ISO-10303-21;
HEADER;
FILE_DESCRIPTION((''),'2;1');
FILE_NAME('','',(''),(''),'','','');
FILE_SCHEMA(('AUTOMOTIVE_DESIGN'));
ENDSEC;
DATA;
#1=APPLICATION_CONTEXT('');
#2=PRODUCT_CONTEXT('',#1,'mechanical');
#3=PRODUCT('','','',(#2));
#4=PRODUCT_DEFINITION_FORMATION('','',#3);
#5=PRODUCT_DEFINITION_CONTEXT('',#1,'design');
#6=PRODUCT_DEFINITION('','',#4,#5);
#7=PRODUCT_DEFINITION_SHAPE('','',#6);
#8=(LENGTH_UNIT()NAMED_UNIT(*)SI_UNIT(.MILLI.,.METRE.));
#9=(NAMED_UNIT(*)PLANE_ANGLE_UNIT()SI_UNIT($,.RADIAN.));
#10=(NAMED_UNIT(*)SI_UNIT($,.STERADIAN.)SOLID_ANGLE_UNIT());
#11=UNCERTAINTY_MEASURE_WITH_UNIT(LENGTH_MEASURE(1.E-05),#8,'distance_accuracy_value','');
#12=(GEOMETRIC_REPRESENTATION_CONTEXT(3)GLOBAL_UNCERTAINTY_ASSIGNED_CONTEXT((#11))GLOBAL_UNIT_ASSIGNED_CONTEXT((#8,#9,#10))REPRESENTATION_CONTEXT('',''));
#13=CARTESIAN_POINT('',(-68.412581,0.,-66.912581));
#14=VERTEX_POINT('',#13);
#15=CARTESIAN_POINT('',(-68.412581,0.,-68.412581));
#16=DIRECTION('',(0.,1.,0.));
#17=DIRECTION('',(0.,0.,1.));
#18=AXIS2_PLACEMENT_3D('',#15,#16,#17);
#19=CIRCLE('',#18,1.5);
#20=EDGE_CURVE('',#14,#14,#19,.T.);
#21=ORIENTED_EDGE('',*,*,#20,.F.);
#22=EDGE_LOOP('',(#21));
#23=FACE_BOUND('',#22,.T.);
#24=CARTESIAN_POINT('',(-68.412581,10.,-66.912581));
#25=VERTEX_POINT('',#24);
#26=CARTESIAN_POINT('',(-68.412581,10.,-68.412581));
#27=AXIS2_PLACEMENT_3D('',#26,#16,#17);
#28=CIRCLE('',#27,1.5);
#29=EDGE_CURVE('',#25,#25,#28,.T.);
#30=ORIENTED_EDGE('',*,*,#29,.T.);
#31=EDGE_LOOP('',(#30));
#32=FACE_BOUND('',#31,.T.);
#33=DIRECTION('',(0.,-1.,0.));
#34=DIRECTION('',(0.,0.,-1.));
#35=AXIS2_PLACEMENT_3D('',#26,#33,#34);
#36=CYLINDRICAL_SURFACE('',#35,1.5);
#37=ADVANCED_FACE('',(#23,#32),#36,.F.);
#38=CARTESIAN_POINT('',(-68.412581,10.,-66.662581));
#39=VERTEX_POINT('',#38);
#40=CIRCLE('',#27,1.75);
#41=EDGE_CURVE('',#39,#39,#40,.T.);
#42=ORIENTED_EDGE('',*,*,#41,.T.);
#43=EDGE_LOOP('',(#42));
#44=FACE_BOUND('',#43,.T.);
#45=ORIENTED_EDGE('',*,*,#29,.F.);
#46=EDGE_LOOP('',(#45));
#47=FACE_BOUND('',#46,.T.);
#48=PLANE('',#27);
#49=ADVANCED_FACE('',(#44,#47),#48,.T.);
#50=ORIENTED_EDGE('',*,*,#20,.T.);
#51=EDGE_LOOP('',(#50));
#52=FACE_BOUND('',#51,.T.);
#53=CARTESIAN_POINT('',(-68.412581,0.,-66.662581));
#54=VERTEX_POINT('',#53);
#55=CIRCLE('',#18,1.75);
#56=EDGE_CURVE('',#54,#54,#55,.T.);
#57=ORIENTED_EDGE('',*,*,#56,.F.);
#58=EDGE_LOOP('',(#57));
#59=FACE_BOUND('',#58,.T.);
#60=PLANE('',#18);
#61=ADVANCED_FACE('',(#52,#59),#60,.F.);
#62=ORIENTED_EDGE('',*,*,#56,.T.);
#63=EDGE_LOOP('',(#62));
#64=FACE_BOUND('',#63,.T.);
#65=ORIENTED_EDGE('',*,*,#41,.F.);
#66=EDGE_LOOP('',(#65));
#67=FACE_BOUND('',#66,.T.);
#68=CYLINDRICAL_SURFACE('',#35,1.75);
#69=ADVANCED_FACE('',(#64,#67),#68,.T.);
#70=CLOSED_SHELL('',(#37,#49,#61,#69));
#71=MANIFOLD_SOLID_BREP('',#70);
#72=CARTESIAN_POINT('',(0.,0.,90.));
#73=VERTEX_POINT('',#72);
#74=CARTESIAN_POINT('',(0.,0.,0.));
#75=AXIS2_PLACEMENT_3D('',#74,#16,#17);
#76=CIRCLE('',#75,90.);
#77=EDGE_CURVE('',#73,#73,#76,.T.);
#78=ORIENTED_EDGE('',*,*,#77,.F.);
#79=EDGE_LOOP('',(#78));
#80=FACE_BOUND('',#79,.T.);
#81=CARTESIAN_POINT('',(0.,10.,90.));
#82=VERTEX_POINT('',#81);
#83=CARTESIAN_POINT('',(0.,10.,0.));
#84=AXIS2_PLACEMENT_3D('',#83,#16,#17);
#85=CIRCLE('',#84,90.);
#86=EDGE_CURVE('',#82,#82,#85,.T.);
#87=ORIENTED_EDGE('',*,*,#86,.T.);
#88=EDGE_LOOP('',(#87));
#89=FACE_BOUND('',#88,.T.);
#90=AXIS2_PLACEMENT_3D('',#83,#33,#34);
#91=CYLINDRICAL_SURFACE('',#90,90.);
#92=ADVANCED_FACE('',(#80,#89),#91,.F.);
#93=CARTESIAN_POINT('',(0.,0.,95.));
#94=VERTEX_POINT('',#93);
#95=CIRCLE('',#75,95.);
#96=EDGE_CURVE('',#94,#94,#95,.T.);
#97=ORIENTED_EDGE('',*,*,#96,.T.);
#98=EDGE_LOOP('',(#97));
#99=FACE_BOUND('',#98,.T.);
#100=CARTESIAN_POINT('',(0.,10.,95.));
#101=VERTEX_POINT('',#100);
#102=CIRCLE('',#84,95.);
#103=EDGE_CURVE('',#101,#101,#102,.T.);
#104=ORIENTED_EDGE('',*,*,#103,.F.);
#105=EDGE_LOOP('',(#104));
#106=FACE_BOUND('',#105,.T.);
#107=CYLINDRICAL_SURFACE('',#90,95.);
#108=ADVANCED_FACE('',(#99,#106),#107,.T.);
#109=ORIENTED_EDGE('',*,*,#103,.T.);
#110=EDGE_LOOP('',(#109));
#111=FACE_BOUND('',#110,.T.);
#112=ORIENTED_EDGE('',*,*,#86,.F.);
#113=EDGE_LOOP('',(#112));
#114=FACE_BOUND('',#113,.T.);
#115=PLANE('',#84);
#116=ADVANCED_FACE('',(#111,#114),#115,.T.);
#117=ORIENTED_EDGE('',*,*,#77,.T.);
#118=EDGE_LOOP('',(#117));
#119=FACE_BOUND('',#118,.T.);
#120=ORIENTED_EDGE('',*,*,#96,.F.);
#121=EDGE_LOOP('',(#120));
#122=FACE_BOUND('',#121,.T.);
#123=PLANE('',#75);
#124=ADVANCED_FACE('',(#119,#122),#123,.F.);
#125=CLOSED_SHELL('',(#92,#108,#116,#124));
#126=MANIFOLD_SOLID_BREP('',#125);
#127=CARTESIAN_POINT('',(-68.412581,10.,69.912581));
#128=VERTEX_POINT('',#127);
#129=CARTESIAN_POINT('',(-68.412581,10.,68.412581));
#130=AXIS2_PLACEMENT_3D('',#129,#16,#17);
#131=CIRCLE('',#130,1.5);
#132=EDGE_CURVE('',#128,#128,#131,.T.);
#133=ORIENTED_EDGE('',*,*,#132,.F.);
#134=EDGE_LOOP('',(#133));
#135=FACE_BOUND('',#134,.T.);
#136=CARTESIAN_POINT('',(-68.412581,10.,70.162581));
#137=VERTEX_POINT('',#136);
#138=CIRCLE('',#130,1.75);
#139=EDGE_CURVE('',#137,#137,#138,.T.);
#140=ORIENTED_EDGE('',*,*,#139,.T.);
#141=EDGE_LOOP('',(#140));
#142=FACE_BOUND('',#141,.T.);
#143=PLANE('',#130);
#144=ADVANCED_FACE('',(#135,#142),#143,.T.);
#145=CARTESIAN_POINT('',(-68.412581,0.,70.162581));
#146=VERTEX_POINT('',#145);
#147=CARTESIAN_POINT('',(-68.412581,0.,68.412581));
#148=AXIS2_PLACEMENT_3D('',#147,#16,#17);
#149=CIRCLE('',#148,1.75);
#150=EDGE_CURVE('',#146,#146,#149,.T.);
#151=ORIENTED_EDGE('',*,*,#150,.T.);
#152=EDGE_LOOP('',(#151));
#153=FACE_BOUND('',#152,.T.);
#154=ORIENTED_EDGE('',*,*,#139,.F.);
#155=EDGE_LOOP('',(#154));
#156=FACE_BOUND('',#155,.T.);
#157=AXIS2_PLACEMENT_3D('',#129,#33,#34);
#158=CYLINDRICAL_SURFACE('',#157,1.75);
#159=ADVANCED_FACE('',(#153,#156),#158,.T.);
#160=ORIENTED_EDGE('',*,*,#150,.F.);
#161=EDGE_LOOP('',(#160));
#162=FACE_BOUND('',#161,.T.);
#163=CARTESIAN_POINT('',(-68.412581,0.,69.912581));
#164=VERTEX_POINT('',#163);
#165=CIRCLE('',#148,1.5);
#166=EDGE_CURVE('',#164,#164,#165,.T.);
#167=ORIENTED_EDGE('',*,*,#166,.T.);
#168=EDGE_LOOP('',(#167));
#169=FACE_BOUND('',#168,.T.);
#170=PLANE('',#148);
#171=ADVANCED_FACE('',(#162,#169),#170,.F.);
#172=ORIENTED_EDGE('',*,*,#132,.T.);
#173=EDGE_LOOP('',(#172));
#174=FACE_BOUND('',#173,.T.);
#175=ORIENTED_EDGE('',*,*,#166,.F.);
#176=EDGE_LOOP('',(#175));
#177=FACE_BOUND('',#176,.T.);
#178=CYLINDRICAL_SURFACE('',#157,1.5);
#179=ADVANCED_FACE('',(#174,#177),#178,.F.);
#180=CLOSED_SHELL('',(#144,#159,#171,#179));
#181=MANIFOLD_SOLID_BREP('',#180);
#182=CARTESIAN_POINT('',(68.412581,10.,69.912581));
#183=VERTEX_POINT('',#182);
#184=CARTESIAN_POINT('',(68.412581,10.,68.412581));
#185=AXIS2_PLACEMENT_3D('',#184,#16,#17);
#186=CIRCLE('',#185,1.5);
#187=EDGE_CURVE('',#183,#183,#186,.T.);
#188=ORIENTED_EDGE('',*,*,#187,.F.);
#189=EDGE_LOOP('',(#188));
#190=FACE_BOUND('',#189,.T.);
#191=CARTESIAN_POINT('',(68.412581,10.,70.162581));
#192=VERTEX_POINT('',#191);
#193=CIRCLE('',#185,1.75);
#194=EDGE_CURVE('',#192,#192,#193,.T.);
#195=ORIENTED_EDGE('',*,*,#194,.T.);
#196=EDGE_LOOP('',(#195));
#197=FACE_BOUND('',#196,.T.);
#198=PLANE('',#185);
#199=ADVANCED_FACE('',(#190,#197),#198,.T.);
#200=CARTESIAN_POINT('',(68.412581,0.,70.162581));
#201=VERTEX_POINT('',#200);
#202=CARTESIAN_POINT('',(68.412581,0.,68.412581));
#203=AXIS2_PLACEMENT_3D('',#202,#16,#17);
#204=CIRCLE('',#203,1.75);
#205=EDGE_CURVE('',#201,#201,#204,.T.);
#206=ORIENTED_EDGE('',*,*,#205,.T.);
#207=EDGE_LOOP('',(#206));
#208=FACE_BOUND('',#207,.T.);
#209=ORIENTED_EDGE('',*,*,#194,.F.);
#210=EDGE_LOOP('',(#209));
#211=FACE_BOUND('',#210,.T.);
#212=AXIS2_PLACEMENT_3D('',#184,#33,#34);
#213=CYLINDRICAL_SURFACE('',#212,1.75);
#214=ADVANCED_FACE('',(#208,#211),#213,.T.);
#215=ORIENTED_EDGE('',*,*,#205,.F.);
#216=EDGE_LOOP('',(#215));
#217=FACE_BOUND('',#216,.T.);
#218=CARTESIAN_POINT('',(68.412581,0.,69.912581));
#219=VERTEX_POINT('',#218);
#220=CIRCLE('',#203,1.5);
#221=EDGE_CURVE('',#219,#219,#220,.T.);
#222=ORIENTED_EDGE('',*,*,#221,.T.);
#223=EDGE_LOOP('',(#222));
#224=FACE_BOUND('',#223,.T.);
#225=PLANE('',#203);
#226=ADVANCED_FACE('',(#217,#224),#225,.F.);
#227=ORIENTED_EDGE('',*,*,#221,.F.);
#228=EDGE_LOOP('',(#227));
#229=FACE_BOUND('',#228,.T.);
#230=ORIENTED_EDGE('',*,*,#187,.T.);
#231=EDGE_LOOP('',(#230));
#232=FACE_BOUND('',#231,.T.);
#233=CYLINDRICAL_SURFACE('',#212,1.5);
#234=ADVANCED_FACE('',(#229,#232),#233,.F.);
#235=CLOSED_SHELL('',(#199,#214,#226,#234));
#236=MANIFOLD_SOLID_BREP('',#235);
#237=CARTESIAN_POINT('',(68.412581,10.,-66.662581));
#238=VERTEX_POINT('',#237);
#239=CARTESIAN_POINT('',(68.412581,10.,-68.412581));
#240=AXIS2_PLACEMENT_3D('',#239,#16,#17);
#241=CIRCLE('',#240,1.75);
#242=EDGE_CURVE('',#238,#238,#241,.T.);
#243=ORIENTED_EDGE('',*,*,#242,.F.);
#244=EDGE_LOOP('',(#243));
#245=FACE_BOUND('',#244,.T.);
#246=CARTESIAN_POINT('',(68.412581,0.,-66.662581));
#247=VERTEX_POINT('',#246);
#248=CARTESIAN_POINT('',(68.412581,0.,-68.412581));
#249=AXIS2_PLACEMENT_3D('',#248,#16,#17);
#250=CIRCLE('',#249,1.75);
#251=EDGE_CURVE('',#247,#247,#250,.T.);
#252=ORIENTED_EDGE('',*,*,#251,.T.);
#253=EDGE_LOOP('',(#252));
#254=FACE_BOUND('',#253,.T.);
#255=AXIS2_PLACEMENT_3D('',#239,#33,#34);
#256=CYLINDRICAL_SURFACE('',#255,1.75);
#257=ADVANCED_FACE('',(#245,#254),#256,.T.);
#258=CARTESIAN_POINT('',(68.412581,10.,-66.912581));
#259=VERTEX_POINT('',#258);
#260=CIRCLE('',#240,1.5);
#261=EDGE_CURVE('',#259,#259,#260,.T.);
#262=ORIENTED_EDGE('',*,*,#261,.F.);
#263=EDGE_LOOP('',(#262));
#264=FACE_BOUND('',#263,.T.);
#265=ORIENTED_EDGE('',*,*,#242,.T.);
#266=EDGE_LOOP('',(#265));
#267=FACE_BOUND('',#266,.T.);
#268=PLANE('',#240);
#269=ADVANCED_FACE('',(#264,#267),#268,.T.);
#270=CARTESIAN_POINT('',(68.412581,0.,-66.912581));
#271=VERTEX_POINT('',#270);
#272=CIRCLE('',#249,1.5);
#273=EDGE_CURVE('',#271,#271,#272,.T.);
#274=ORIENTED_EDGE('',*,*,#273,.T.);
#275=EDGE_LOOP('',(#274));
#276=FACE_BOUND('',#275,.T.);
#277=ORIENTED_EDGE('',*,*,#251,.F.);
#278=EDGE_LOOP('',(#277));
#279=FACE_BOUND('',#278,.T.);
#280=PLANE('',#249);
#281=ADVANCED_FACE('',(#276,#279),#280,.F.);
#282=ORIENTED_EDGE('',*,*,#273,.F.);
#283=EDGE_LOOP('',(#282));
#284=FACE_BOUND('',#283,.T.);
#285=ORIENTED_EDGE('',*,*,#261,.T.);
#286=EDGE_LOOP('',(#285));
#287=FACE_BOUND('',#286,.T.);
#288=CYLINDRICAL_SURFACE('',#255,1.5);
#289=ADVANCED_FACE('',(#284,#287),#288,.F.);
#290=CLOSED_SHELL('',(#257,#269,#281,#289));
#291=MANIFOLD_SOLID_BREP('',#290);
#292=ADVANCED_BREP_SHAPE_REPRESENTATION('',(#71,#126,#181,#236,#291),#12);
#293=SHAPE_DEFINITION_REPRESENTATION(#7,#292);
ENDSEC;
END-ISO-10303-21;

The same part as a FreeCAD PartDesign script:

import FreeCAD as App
import Part
import Sketcher

V = App.Vector

doc = App.newDocument("Part")
body = doc.addObject("PartDesign::Body", "Body")

sketch1 = body.newObject("Sketcher::SketchObject", "Sketch")
sketch1.AttachmentSupport = (doc.getObject("XZ_Plane"), [""])
sketch1.MapMode = "FlatFace"
sketch1.addGeometry(Part.Circle(V(0, 0, 0), V(0, 0, 1), 95), False)
sketch1.addGeometry(Part.Circle(V(0, 0, 0), V(0, 0, 1), 90), False)
sketch1.addConstraint(Sketcher.Constraint("Coincident", 0, 3, -1, 1))
sketch1.addConstraint(Sketcher.Constraint("Coincident", 1, 3, -1, 1))
sketch1.addConstraint(Sketcher.Constraint("Diameter", 0, 190.0))
sketch1.addConstraint(Sketcher.Constraint("Diameter", 1, 180.0))
pad1 = body.newObject("PartDesign::Pad", "Pad")
pad1.Profile = sketch1
pad1.Length = 10
pad1.Reversed = True
body2 = doc.addObject("PartDesign::Body", "Body001")

sketch2 = body2.newObject("Sketcher::SketchObject", "Sketch001")
sketch2.AttachmentSupport = (doc.getObject("XZ_Plane001"), [""])
sketch2.MapMode = "FlatFace"
sketch2.addGeometry(Part.Circle(V(68.4, -68.4, 0), V(0, 0, 1), 1.8), False)
sketch2.addGeometry(Part.Circle(V(68.4, -68.4, 0), V(0, 0, 1), 1.5), False)
sketch2.addConstraint(Sketcher.Constraint("Coincident", 1, 3, 0, 3))
sketch2.addConstraint(Sketcher.Constraint("Diameter", 1, 3.0))
sketch2.addConstraint(Sketcher.Constraint("Diameter", 0, 3.5))
sketch2.addConstraint(Sketcher.Constraint("DistanceX", -1, 1, 0, 3, 68.412581))
sketch2.addConstraint(Sketcher.Constraint("DistanceY", 0, 3, -1, 1, 68.412581))
pad2 = body2.newObject("PartDesign::Pad", "Pad001")
pad2.Profile = sketch2
pad2.Length = 10
pad2.Reversed = True
body3 = doc.addObject("PartDesign::Body", "Body002")

sketch3 = body3.newObject("Sketcher::SketchObject", "Sketch002")
sketch3.AttachmentSupport = (doc.getObject("XZ_Plane002"), [""])
sketch3.MapMode = "FlatFace"
sketch3.addGeometry(Part.Circle(V(68.4, 68.4, 0), V(0, 0, 1), 1.8), False)
sketch3.addGeometry(Part.Circle(V(68.4, 68.4, 0), V(0, 0, 1), 1.5), False)
sketch3.addConstraint(Sketcher.Constraint("Coincident", 1, 3, 0, 3))
sketch3.addConstraint(Sketcher.Constraint("Diameter", 1, 3.0))
sketch3.addConstraint(Sketcher.Constraint("Diameter", 0, 3.5))
sketch3.addConstraint(Sketcher.Constraint("DistanceX", -1, 1, 0, 3, 68.412581))
sketch3.addConstraint(Sketcher.Constraint("DistanceY", -1, 1, 0, 3, 68.412581))
pad3 = body3.newObject("PartDesign::Pad", "Pad002")
pad3.Profile = sketch3
pad3.Length = 10
pad3.Reversed = True
body4 = doc.addObject("PartDesign::Body", "Body003")

sketch4 = body4.newObject("Sketcher::SketchObject", "Sketch003")
sketch4.AttachmentSupport = (doc.getObject("XZ_Plane003"), [""])
sketch4.MapMode = "FlatFace"
sketch4.addGeometry(Part.Circle(V(-68.4, 68.4, 0), V(0, 0, 1), 1.8), False)
sketch4.addGeometry(Part.Circle(V(-68.4, 68.4, 0), V(0, 0, 1), 1.5), False)
sketch4.addConstraint(Sketcher.Constraint("Coincident", 1, 3, 0, 3))
sketch4.addConstraint(Sketcher.Constraint("Diameter", 1, 3.0))
sketch4.addConstraint(Sketcher.Constraint("Diameter", 0, 3.5))
sketch4.addConstraint(Sketcher.Constraint("DistanceX", 0, 3, -1, 1, 68.412581))
sketch4.addConstraint(Sketcher.Constraint("DistanceY", -1, 1, 0, 3, 68.412581))
pad4 = body4.newObject("PartDesign::Pad", "Pad003")
pad4.Profile = sketch4
pad4.Length = 10
pad4.Reversed = True
body5 = doc.addObject("PartDesign::Body", "Body004")

sketch5 = body5.newObject("Sketcher::SketchObject", "Sketch004")
sketch5.AttachmentSupport = (doc.getObject("XZ_Plane004"), [""])
sketch5.MapMode = "FlatFace"
sketch5.addGeometry(Part.Circle(V(-68.4, -68.4, 0), V(0, 0, 1), 1.8), False)
sketch5.addGeometry(Part.Circle(V(-68.4, -68.4, 0), V(0, 0, 1), 1.5), False)
sketch5.addConstraint(Sketcher.Constraint("Coincident", 1, 3, 0, 3))
sketch5.addConstraint(Sketcher.Constraint("Diameter", 1, 3.0))
sketch5.addConstraint(Sketcher.Constraint("Diameter", 0, 3.5))
sketch5.addConstraint(Sketcher.Constraint("DistanceX", 0, 3, -1, 1, 68.412581))
sketch5.addConstraint(Sketcher.Constraint("DistanceY", 0, 3, -1, 1, 68.412581))
pad5 = body5.newObject("PartDesign::Pad", "Pad004")
pad5.Profile = sketch5
pad5.Length = 10
pad5.Reversed = True

doc.recompute()
